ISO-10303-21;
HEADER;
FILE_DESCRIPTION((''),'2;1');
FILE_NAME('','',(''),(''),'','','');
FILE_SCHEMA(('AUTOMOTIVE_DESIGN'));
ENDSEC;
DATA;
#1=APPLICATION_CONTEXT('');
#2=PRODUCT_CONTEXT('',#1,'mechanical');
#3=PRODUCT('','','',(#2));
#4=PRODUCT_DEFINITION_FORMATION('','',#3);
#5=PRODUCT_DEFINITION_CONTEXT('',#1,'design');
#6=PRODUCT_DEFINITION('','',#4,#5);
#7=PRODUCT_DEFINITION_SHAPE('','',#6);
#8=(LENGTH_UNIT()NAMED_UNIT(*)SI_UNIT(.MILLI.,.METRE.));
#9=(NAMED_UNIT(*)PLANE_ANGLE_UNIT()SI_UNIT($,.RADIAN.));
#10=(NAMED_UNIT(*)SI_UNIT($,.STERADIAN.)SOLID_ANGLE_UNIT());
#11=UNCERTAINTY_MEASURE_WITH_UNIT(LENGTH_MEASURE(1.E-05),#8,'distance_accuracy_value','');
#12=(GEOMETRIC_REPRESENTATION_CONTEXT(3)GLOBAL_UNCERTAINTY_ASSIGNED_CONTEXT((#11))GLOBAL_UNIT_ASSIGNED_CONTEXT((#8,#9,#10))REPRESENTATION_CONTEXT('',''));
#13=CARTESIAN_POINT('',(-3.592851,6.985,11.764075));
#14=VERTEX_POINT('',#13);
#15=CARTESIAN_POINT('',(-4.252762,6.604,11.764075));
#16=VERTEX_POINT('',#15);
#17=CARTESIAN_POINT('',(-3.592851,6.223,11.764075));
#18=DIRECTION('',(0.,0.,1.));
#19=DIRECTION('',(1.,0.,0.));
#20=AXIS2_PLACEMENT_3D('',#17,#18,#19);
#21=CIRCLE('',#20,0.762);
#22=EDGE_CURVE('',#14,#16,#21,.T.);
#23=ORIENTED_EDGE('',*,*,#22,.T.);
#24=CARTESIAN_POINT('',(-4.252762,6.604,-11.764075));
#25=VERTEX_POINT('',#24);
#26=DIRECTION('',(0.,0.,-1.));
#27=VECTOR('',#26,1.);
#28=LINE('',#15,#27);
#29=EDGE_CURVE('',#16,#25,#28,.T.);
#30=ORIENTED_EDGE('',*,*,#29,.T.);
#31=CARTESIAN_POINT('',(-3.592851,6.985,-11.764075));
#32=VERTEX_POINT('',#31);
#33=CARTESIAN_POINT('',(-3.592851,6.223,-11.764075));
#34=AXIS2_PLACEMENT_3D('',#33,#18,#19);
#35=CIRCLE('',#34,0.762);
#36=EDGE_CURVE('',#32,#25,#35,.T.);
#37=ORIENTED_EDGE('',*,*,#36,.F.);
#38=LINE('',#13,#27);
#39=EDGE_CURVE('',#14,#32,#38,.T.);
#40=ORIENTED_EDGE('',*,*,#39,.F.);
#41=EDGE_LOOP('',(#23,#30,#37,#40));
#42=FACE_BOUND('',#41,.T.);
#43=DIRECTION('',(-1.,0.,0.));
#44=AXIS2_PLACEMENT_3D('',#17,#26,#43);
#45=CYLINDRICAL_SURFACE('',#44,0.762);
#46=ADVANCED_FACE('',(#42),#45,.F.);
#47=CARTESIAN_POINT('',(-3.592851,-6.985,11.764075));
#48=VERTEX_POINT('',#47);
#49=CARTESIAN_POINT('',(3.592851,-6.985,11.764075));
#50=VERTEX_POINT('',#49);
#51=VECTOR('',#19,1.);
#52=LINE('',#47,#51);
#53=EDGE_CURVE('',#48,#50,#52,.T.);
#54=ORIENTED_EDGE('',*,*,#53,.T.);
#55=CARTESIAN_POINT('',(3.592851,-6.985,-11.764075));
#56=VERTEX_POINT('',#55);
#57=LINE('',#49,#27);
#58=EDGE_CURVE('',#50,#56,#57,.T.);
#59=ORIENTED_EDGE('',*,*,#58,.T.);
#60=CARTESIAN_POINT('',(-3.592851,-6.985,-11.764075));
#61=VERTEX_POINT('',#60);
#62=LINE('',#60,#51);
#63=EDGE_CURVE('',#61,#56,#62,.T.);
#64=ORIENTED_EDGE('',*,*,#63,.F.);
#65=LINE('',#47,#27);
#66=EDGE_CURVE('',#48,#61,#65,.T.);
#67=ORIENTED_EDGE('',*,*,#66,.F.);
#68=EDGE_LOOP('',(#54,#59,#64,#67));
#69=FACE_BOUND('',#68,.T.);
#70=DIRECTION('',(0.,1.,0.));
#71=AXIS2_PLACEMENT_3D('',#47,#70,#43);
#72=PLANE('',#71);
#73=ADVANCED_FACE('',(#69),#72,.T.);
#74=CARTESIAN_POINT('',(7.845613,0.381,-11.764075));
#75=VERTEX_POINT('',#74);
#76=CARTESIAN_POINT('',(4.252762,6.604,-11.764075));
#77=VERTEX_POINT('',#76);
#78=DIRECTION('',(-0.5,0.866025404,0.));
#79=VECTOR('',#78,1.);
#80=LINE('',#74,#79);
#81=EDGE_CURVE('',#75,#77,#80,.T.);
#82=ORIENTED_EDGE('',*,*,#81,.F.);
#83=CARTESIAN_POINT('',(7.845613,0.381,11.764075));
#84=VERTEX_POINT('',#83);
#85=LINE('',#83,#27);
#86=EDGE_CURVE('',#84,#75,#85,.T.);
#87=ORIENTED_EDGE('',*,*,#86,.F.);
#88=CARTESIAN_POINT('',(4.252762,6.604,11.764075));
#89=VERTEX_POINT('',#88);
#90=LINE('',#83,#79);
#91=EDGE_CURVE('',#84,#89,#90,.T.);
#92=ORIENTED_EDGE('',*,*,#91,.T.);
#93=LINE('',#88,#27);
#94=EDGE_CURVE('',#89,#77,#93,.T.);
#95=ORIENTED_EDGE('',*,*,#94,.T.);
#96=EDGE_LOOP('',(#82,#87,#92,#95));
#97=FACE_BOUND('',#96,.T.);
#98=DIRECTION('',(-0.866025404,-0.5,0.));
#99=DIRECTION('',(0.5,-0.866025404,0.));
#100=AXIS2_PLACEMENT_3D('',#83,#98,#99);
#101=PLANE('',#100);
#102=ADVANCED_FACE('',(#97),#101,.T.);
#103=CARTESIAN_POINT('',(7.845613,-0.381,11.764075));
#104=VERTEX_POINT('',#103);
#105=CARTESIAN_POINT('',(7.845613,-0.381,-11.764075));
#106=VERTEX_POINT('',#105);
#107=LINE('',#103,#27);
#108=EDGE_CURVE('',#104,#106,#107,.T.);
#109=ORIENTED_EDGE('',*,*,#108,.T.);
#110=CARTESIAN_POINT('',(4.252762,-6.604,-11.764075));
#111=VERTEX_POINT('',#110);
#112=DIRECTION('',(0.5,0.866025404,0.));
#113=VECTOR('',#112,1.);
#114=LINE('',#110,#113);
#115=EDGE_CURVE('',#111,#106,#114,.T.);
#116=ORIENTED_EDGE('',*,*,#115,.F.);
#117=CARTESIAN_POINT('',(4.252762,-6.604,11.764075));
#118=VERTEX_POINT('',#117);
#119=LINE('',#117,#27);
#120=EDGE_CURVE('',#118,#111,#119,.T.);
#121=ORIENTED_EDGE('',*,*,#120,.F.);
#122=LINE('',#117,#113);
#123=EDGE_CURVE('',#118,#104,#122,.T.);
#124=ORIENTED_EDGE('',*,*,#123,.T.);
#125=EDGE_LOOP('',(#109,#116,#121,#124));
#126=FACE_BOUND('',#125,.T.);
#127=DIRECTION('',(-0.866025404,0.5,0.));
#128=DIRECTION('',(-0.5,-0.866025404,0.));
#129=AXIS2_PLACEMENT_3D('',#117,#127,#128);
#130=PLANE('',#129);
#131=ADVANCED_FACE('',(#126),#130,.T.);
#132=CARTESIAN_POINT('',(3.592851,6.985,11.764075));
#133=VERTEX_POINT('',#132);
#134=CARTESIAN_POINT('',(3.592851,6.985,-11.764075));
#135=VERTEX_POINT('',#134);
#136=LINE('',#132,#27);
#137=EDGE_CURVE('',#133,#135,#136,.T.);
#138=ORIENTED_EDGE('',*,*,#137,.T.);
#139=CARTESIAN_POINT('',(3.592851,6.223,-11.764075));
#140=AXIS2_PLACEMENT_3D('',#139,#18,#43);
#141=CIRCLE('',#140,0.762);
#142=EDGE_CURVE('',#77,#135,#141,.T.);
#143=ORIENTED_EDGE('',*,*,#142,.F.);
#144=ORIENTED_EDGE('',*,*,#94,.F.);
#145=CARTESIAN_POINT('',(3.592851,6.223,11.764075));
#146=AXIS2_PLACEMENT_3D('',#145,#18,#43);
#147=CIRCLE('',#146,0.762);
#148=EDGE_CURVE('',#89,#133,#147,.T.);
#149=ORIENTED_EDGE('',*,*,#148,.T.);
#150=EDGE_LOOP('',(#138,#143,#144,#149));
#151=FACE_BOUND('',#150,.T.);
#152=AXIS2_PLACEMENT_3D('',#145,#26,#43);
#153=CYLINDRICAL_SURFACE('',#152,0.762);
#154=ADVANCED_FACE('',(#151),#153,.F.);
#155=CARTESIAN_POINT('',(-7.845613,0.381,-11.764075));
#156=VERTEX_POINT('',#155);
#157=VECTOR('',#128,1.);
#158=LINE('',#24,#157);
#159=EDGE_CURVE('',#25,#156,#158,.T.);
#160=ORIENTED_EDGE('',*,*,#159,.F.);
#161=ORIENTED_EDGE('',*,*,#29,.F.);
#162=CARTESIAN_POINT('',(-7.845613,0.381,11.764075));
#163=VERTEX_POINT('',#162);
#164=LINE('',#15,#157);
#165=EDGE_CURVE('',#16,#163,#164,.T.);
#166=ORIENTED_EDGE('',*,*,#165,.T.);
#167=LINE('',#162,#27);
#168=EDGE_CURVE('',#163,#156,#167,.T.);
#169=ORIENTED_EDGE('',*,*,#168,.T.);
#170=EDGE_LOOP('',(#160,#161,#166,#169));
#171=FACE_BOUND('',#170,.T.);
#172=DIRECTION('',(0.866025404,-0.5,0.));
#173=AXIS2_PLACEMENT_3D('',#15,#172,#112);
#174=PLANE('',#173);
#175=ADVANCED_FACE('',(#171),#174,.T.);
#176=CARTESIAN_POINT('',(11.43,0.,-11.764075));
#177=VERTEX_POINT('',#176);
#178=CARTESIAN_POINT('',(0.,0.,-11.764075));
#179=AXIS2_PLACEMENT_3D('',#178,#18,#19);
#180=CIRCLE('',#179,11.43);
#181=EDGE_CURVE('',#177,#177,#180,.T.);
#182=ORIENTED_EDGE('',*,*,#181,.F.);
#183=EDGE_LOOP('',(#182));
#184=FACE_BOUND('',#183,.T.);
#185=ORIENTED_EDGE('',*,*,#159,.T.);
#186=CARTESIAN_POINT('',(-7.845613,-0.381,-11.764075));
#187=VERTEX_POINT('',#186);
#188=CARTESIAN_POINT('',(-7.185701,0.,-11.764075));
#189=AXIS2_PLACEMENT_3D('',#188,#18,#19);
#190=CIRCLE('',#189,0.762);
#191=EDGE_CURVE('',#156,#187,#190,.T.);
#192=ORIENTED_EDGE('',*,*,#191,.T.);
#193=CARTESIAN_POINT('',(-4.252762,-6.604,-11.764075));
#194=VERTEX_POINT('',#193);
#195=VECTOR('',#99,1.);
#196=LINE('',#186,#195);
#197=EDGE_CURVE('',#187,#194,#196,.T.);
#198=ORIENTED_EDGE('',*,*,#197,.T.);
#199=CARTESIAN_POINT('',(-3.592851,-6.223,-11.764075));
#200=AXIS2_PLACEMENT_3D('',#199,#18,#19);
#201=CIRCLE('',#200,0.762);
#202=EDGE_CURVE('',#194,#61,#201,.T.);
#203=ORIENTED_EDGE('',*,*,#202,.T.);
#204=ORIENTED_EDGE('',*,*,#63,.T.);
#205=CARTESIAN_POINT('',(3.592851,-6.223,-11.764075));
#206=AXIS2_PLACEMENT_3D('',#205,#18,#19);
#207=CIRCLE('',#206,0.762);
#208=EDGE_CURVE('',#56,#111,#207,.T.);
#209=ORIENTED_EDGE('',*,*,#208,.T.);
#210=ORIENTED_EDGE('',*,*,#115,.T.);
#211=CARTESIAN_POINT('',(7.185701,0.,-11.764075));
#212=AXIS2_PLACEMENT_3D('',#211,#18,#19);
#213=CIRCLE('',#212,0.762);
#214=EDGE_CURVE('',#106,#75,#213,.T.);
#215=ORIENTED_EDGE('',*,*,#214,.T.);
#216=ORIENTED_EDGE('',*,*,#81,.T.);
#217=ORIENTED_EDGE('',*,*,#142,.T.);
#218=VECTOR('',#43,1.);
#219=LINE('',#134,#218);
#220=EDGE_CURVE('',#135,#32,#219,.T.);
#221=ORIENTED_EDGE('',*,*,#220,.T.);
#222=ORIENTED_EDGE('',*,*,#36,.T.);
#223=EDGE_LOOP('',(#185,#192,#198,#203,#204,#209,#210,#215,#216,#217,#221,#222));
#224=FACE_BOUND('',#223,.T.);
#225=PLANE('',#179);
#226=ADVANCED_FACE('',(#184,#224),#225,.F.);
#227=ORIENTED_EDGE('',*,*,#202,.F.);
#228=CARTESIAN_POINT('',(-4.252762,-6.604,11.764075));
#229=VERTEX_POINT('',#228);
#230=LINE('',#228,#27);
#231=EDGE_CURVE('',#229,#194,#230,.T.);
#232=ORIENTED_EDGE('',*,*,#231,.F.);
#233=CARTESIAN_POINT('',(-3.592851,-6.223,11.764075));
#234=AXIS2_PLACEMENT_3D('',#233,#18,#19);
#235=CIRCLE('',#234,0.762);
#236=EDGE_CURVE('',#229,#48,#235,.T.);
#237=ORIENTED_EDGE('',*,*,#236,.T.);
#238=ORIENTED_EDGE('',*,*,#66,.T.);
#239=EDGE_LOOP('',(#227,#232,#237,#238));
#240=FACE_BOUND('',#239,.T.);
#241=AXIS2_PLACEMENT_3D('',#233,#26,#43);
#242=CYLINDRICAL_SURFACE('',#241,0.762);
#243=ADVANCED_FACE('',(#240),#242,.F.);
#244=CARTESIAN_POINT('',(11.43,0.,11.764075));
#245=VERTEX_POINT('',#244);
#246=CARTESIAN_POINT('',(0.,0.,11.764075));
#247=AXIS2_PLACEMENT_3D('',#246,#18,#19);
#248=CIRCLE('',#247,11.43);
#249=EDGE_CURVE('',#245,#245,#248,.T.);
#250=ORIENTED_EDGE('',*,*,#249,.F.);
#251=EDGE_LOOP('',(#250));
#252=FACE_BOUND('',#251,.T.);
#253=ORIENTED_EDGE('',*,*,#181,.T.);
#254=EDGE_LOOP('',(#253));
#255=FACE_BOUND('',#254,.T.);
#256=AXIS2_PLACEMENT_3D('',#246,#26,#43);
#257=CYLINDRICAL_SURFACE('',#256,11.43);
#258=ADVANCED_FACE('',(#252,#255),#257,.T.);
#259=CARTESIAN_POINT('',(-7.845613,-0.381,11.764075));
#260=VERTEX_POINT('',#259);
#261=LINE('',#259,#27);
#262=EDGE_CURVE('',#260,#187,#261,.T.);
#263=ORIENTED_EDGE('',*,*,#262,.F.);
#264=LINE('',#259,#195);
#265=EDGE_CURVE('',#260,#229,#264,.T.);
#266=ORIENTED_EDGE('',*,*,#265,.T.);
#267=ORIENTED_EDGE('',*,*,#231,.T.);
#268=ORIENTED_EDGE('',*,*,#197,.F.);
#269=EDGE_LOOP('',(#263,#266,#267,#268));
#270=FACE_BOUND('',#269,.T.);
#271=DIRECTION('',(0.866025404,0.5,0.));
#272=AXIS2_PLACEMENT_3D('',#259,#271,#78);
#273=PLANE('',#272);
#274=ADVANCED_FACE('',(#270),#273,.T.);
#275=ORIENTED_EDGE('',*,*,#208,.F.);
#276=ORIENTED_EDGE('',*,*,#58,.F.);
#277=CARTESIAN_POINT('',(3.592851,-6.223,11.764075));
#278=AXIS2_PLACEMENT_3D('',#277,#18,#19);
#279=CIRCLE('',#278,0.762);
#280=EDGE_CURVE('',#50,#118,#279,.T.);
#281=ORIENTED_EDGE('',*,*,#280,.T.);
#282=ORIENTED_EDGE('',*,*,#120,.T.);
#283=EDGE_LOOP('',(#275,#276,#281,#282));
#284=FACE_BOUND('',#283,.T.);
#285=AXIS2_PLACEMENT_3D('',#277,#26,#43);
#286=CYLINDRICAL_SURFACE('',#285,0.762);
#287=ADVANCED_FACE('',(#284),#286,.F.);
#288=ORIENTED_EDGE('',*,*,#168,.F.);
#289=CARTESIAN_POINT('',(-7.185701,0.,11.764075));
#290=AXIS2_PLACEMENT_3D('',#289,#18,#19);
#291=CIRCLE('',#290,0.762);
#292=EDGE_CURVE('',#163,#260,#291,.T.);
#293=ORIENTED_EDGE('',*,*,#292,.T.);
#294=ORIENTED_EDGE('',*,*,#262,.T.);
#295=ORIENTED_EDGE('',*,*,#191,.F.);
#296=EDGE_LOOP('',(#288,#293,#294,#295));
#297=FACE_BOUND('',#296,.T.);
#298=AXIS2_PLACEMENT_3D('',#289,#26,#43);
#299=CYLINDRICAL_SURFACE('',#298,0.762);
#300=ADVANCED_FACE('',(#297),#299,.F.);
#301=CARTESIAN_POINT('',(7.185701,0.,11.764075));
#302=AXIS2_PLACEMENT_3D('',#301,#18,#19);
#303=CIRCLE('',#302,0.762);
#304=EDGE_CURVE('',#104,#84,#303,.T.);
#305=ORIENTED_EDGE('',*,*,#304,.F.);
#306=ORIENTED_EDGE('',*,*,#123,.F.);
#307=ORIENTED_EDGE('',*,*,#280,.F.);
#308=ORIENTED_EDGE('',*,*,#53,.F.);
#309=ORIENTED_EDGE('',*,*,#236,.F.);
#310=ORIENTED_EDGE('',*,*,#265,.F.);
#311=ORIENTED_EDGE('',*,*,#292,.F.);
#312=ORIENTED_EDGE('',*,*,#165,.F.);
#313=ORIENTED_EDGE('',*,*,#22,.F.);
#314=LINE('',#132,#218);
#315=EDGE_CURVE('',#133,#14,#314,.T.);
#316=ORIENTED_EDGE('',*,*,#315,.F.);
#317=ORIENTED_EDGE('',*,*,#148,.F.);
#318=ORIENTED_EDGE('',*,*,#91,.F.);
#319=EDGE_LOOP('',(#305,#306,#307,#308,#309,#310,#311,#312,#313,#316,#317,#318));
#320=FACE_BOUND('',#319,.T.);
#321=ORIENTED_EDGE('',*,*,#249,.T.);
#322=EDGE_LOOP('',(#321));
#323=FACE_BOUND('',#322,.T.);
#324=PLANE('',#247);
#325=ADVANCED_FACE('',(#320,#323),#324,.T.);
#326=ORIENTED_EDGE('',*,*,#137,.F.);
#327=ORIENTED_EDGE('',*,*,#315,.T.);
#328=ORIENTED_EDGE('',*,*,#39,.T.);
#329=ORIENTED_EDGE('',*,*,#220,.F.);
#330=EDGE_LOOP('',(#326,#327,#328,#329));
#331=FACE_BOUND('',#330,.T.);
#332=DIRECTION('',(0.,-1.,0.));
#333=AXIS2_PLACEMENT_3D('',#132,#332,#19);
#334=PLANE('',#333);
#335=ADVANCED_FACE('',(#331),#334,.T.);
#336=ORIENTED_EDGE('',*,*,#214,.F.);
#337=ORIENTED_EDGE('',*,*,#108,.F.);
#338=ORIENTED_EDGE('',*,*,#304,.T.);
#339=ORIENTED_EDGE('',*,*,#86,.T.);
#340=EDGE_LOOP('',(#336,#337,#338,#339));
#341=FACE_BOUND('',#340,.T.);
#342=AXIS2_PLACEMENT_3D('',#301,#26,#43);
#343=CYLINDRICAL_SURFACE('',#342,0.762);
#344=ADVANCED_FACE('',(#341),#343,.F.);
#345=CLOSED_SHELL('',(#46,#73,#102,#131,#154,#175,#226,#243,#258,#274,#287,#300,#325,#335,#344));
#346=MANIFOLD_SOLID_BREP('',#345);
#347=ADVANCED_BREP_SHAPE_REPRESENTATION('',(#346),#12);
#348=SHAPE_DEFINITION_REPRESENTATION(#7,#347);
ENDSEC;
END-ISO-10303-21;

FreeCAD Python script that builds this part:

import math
import FreeCAD as App
import Part
import Sketcher
Q = App.Units.Quantity

doc = App.newDocument("Part")
params = doc.addObject("Spreadsheet::Sheet", "Params")
for row, (alias, value) in enumerate([
    ("sketch1_diameter", "0.9 in"),
    ("sketch1_radius", "0.03 in"),
    ("pad1_length", "23.52815 mm"),
], start=1):
    params.set(f"A{row}", alias)
    params.set(f"B{row}", "=" + value)
    params.setAlias(f"B{row}", alias)

body = doc.addObject("PartDesign::Body", "Body")

# Sketch on XY plane
sketch1 = doc.addObject("Sketcher::SketchObject", "Sketch")
body.addObject(sketch1)
sketch1.AttachmentSupport = (doc.XY_Plane, [""])
sketch1.MapMode = "FlatFace"
sketch1.addGeometry([
    Part.Circle(App.Vector(0, 0, 0), App.Vector(0, 0, 1), 11.4),  # 0
    Part.LineSegment(App.Vector(-3.6, 7, 0), App.Vector(3.6, 7, 0)),  # 1
    Part.ArcOfCircle(Part.Circle(App.Vector(3.6, 6.2, 0), App.Vector(0, 0, 1), 0.8), math.radians(30), math.radians(90)),  # 2
    Part.LineSegment(App.Vector(4.3, 6.6, 0), App.Vector(7.8, 0.4, 0)),  # 3
    Part.ArcOfCircle(Part.Circle(App.Vector(7.2, 0, 0), App.Vector(0, 0, 1), 0.8), math.radians(-30), math.radians(30)),  # 4
    Part.LineSegment(App.Vector(7.8, -0.4, 0), App.Vector(4.3, -6.6, 0)),  # 5
    Part.ArcOfCircle(Part.Circle(App.Vector(3.6, -6.2, 0), App.Vector(0, 0, 1), 0.8), math.radians(-90), math.radians(-30)),  # 6
    Part.LineSegment(App.Vector(3.6, -7, 0), App.Vector(-3.6, -7, 0)),  # 7
    Part.ArcOfCircle(Part.Circle(App.Vector(-3.6, -6.2, 0), App.Vector(0, 0, 1), 0.8), math.radians(-150), math.radians(-90)),  # 8
    Part.LineSegment(App.Vector(-4.3, -6.6, 0), App.Vector(-7.8, -0.4, 0)),  # 9
    Part.ArcOfCircle(Part.Circle(App.Vector(-7.2, 0, 0), App.Vector(0, 0, 1), 0.8), math.radians(150), math.radians(210)),  # 10
    Part.LineSegment(App.Vector(-7.8, 0.4, 0), App.Vector(-4.3, 6.6, 0)),  # 11
    Part.ArcOfCircle(Part.Circle(App.Vector(-3.6, 6.2, 0), App.Vector(0, 0, 1), 0.8), math.radians(90), math.radians(150)),  # 12
], False)
sketch1.addConstraint([
    Sketcher.Constraint("Tangent", 1, 2, 2, 2),
    Sketcher.Constraint("Tangent", 2, 1, 3, 1),
    Sketcher.Constraint("Tangent", 3, 2, 4, 2),
    Sketcher.Constraint("Tangent", 4, 1, 5, 1),
    Sketcher.Constraint("Tangent", 5, 2, 6, 2),
    Sketcher.Constraint("Tangent", 6, 1, 7, 1),
    Sketcher.Constraint("Tangent", 7, 2, 8, 2),
    Sketcher.Constraint("Tangent", 8, 1, 9, 1),
    Sketcher.Constraint("Tangent", 9, 2, 10, 2),
    Sketcher.Constraint("Tangent", 10, 1, 11, 1),
    Sketcher.Constraint("Tangent", 11, 2, 12, 2),
    Sketcher.Constraint("Tangent", 12, 1, 1, 1),
    Sketcher.Constraint("Horizontal", 1),
    Sketcher.Constraint("Horizontal", 7),
    Sketcher.Constraint("Coincident", 0, 3, -1, 1),
    Sketcher.Constraint("Equal", 2, 4),
    Sketcher.Constraint("Equal", 4, 6),
    Sketcher.Constraint("Equal", 6, 8),
    Sketcher.Constraint("Equal", 8, 10),
    Sketcher.Constraint("Equal", 10, 12),
    Sketcher.Constraint("Symmetric", 2, 3, 8, 3, -1, 1),
    Sketcher.Constraint("Symmetric", 4, 3, 10, 3, -1, 1),
    Sketcher.Constraint("Symmetric", 5, 2, 8, 1, -2),
    Sketcher.Constraint("Parallel", 5, 11),
    Sketcher.Constraint("Diameter", 0, Q("0.9 in")),
    Sketcher.Constraint("Radius", 2, Q("0.03 in")),
    Sketcher.Constraint("Angle", 3, Q("-60 deg")),
    Sketcher.Constraint("DistanceY", -1, 1, 2, 1, Q("0.26 in")),
    Sketcher.Constraint("DistanceX", 1, 1, 1, 2, 7.185701),
])
sketch1.setExpression("Constraints[24]", "Params.sketch1_diameter")
sketch1.setExpression("Constraints[25]", "Params.sketch1_radius")
pad1 = doc.addObject("PartDesign::Pad", "Pad")
body.addObject(pad1)
pad1.Profile = sketch1
pad1.setExpression("Length", "Params.pad1_length")
pad1.Midplane = True

doc.recompute()
